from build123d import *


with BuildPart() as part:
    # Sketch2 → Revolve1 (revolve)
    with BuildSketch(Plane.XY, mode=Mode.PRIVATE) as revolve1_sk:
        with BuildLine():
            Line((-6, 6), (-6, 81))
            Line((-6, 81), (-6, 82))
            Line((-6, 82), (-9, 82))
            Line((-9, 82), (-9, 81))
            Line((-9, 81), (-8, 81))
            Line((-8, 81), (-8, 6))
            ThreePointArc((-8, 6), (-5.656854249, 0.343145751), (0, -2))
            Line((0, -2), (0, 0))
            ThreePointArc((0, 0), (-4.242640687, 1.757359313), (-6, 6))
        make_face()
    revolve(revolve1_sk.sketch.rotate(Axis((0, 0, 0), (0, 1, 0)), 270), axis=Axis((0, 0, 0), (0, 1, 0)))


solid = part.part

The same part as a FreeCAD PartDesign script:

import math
import FreeCAD as App
import Part
import Sketcher

doc = App.newDocument("Part")
body = doc.addObject("PartDesign::Body", "Body")

# Sketch on XY plane
sketch1 = doc.addObject("Sketcher::SketchObject", "Sketch")
body.addObject(sketch1)
sketch1.AttachmentSupport = (doc.XY_Plane, [""])
sketch1.MapMode = "FlatFace"
sketch1.addGeometry([
    Part.LineSegment(App.Vector(-6, 6, 0), App.Vector(-6, 82, 0)),  # 0
    Part.LineSegment(App.Vector(-6, 82, 0), App.Vector(-9, 82, 0)),  # 1
    Part.LineSegment(App.Vector(-9, 82, 0), App.Vector(-9, 81, 0)),  # 2
    Part.LineSegment(App.Vector(-9, 81, 0), App.Vector(-8, 81, 0)),  # 3
    Part.LineSegment(App.Vector(-8, 81, 0), App.Vector(-8, 6, 0)),  # 4
    Part.ArcOfCircle(Part.Circle(App.Vector(0, 6, 0), App.Vector(0, 0, 1), 8), math.radians(-180), math.radians(-90)),  # 5
    Part.LineSegment(App.Vector(0, -2, 0), App.Vector(0, 0, 0)),  # 6
    Part.ArcOfCircle(Part.Circle(App.Vector(0, 6, 0), App.Vector(0, 0, 1), 6), math.radians(180), math.radians(270)),  # 7
], False)
sketch1.addConstraint([
    Sketcher.Constraint("Coincident", 0, 2, 1, 1),
    Sketcher.Constraint("Coincident", 1, 2, 2, 1),
    Sketcher.Constraint("Coincident", 2, 2, 3, 1),
    Sketcher.Constraint("Coincident", 3, 2, 4, 1),
    Sketcher.Constraint("Tangent", 4, 2, 5, 1),
    Sketcher.Constraint("Coincident", 5, 2, 6, 1),
    Sketcher.Constraint("Coincident", 6, 2, 7, 2),
    Sketcher.Constraint("Tangent", 7, 1, 0, 1),
    Sketcher.Constraint("Vertical", 0),
    Sketcher.Constraint("Horizontal", 1),
    Sketcher.Constraint("Vertical", 2),
    Sketcher.Constraint("Horizontal", 3),
    Sketcher.Constraint("Vertical", 4),
    Sketcher.Constraint("Vertical", 6),
    Sketcher.Constraint("Coincident", 6, 2, -1, 1),
    Sketcher.Constraint("Coincident", 7, 3, 5, 3),
    Sketcher.Constraint("PointOnObject", 5, 3, -2),
    Sketcher.Constraint("Equal", 3, 2),
    Sketcher.Constraint("Radius", 5, 8.0),
    Sketcher.Constraint("Radius", 7, 6.0),
    Sketcher.Constraint("DistanceX", 1, 2, 1, 1, 3.0),
    Sketcher.Constraint("DistanceY", 0, 1, 0, 2, 76.0),
])
revolution = doc.addObject("PartDesign::Revolution", "Revolution")
body.addObject(revolution)
revolution.Profile = sketch1
revolution.ReferenceAxis = (sketch1, ["V_Axis"])
revolution.Angle = 360

doc.recompute()
